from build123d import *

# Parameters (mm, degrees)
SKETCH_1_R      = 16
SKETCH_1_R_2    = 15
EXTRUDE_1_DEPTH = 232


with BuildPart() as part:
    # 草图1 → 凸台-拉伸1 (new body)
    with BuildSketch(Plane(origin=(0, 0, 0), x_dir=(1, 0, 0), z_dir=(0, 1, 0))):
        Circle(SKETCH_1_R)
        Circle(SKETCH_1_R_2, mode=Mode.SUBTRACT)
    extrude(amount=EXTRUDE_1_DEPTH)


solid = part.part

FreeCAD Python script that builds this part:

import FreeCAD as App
import Part
import Sketcher

doc = App.newDocument("Part")
body = doc.addObject("PartDesign::Body", "Body")

# Sketch on XZ plane
sketch1 = body.newObject("Sketcher::SketchObject", "Sketch")
sketch1.AttachmentSupport = (doc.getObject("XZ_Plane"), [""])
sketch1.MapMode = "FlatFace"
sketch1.addGeometry(Part.Circle(App.Vector(0, 0, 0), App.Vector(0, 0, 1), 16), False)
sketch1.addGeometry(Part.Circle(App.Vector(0, 0, 0), App.Vector(0, 0, 1), 15), False)
sketch1.addConstraint(Sketcher.Constraint("Coincident", 0, 3, -1, 1))
sketch1.addConstraint(Sketcher.Constraint("Coincident", 1, 3, -1, 1))
sketch1.addConstraint(Sketcher.Constraint("Diameter", 0, 32.0))
sketch1.addConstraint(Sketcher.Constraint("Diameter", 1, 30.0))
pad1 = body.newObject("PartDesign::Pad", "Pad")
pad1.Profile = sketch1
pad1.Length = 232
pad1.Reversed = True

doc.recompute()
